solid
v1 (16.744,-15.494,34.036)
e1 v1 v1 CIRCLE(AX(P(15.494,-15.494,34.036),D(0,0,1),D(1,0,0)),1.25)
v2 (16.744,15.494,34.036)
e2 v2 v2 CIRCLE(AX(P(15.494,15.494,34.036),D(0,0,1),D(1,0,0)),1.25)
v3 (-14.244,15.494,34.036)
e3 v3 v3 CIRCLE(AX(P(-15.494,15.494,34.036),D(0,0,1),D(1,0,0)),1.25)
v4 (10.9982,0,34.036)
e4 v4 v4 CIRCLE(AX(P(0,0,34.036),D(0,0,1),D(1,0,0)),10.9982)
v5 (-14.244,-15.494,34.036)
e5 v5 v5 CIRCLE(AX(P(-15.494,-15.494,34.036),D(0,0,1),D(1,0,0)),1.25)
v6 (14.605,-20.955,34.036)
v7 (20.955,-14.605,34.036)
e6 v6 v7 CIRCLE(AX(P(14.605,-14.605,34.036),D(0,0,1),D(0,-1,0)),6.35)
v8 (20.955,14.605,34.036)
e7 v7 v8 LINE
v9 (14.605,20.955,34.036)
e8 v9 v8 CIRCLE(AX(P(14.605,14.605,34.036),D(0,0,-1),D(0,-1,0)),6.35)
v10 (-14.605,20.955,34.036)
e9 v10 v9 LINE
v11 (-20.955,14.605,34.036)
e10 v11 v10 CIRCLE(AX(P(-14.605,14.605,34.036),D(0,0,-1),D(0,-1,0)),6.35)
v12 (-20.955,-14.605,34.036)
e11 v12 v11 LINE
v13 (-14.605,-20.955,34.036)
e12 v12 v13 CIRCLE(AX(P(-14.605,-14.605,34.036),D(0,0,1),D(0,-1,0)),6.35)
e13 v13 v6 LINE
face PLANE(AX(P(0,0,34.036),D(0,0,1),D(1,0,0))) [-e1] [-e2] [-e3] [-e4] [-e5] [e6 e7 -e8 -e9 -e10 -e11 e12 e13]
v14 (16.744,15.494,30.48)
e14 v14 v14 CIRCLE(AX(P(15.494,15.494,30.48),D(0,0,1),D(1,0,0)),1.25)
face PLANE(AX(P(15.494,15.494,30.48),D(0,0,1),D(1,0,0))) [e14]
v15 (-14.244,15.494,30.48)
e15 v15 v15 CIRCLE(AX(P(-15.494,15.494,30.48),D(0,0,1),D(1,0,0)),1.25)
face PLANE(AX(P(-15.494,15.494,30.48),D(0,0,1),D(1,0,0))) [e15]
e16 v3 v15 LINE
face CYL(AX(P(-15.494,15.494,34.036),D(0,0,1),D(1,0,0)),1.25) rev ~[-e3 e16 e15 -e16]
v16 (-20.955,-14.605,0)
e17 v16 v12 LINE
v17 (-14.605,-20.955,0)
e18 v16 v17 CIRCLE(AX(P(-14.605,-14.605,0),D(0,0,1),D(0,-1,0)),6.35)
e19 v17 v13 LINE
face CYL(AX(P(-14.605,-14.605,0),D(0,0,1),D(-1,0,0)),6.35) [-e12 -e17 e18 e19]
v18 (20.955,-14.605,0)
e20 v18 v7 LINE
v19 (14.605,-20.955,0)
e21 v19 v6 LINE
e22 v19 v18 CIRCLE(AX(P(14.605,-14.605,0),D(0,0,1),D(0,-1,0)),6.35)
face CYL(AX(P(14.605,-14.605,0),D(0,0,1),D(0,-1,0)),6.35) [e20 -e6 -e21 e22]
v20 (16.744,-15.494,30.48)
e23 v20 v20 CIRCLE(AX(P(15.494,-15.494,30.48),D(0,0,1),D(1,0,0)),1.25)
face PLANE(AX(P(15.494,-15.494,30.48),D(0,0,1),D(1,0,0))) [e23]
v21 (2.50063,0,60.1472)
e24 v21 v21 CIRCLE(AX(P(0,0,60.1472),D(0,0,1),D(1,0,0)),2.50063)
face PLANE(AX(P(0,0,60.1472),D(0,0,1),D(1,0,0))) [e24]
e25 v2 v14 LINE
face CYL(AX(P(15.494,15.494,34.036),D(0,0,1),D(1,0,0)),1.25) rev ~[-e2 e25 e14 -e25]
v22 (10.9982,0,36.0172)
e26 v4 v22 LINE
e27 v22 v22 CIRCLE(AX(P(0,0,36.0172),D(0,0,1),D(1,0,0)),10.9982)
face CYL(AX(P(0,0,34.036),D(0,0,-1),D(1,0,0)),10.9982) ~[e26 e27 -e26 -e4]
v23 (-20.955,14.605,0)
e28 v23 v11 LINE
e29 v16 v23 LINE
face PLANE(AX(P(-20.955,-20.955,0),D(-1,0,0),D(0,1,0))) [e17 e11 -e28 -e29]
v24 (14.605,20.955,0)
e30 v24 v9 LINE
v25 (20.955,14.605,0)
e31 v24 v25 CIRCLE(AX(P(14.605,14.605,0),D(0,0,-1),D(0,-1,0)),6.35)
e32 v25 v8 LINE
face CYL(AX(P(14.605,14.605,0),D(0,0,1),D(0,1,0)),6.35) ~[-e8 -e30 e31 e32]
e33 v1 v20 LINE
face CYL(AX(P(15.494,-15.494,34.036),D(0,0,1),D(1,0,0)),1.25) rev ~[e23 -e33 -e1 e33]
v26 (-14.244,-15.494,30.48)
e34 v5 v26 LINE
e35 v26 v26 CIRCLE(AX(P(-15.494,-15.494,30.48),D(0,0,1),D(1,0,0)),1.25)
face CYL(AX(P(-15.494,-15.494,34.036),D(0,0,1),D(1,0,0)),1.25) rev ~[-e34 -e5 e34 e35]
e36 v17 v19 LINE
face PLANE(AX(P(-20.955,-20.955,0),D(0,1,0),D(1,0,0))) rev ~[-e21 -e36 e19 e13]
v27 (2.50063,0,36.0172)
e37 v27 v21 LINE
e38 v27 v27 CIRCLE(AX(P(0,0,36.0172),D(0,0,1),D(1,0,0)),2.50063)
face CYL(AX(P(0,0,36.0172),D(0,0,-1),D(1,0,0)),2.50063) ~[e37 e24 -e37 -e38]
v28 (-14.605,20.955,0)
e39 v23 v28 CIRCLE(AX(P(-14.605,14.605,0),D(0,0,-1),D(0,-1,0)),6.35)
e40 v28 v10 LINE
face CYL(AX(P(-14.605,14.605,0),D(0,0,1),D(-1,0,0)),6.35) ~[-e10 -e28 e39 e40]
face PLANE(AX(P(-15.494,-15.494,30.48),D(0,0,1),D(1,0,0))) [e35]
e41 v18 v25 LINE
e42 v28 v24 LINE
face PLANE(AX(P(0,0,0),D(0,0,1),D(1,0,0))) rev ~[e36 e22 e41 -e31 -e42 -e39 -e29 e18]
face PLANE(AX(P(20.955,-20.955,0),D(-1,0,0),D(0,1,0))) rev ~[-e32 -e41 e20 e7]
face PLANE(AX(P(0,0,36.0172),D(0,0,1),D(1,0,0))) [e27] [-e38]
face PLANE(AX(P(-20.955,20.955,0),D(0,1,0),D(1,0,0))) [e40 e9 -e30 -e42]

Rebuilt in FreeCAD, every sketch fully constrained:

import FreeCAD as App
import Part
import Sketcher
Q = App.Units.Quantity


def edges_at(feature, points):
    """Names of the edges that pass closest to the given points."""
    edges = feature.Shape.Edges
    near = lambda p: min(range(len(edges)), key=lambda i: edges[i].distToShape(Part.Vertex(*p))[0])
    return sorted({f"Edge{near(p) + 1}" for p in points})


def add_polygon(sketch, points):
    """Adds a closed chain of lines whose ends are joined by coincident constraints."""
    first, n = sketch.GeometryCount, len(points)
    for a, b in zip(points, points[1:] + points[:1]):
        sketch.addGeometry(Part.LineSegment(App.Vector(*a, 0), App.Vector(*b, 0)), False)
    for i in range(n):
        sketch.addConstraint(Sketcher.Constraint("Coincident", first + i, 2, first + (i + 1) % n, 1))

doc = App.newDocument("Part")
body = doc.addObject("PartDesign::Body", "Body")

# Sketch on XY plane
sketch1 = doc.addObject("Sketcher::SketchObject", "Sketch")
body.addObject(sketch1)
sketch1.AttachmentSupport = (doc.XY_Plane, [""])
sketch1.MapMode = "FlatFace"
add_polygon(sketch1, [(-21, 21), (-21, -21), (21, -21), (21, 21)])  # lines 0-3
sketch1.addConstraint([
    Sketcher.Constraint("Vertical", 0),
    Sketcher.Constraint("Horizontal", 1),
    Sketcher.Constraint("Vertical", 2),
    Sketcher.Constraint("Horizontal", 3),
    Sketcher.Constraint("Symmetric", 0, 2, 2, 2, -1, 1),
    Sketcher.Constraint("Equal", 3, 0),
    Sketcher.Constraint("DistanceX", 1, 1, 1, 2, Q("1.65 in")),
])
pad1 = doc.addObject("PartDesign::Pad", "Pad")
body.addObject(pad1)
pad1.Profile = sketch1
pad1.Length = Q("1.34 in")

# Sketch on XY plane
sketch2 = doc.addObject("Sketcher::SketchObject", "Sketch001")
body.addObject(sketch2)
sketch2.AttachmentSupport = (doc.XY_Plane, [""])
sketch2.MapMode = "FlatFace"
sketch2.AttachmentOffset = App.Placement(App.Vector(0, 0, 1.34 * 25.4), App.Rotation())
sketch2.addGeometry([
    Part.Circle(App.Vector(15.5, -15.5, 0), App.Vector(0, 0, 1), 1.2),
    Part.Circle(App.Vector(15.5, 15.5, 0), App.Vector(0, 0, 1), 1.2),
    Part.Circle(App.Vector(-15.5, 15.5, 0), App.Vector(0, 0, 1), 1.2),
    Part.Circle(App.Vector(-15.5, -15.5, 0), App.Vector(0, 0, 1), 1.2),
], False)
sketch2.addConstraint([
    Sketcher.Constraint("Equal", 0, 1),
    Sketcher.Constraint("Equal", 1, 2),
    Sketcher.Constraint("Equal", 2, 3),
    Sketcher.Constraint("Symmetric", 0, 3, 2, 3, -1, 1),
    Sketcher.Constraint("Symmetric", 1, 3, 3, 3, -1, 1),
    Sketcher.Constraint("Symmetric", 1, 3, 2, 3, -2),
    Sketcher.Constraint("Diameter", 0, 2.5),
    Sketcher.Constraint("DistanceX", -1, 1, 0, 3, Q("0.61 in")),
    Sketcher.Constraint("DistanceY", 0, 3, -1, 1, Q("0.61 in")),
])
pocket1 = doc.addObject("PartDesign::Pocket", "Pocket")
body.addObject(pocket1)
pocket1.Profile = sketch2
pocket1.Length = Q("0.14 in")
doc.recompute()

fillet = doc.addObject("PartDesign::Fillet", "Fillet")
body.addObject(fillet)
fillet.Base = (pocket1, edges_at(pocket1, [
    (-20.955, -20.955, 17.018),
    (20.955, -20.955, 17.018),
    (20.955, 20.955, 17.018),
    (-20.955, 20.955, 17.018),
]))
fillet.Radius = Q("0.25 in")

# Sketch on XY plane
sketch3 = doc.addObject("Sketcher::SketchObject", "Sketch002")
body.addObject(sketch3)
sketch3.AttachmentSupport = (doc.XY_Plane, [""])
sketch3.MapMode = "FlatFace"
sketch3.AttachmentOffset = App.Placement(App.Vector(0, 0, 1.34 * 25.4), App.Rotation())
sketch3.addGeometry(Part.Circle(App.Vector(0, 0, 0), App.Vector(0, 0, 1), 11), False)
sketch3.addConstraint([
    Sketcher.Constraint("Coincident", 0, 3, -1, 1),
    Sketcher.Constraint("Diameter", 0, Q("0.866 in")),
])
pad2 = doc.addObject("PartDesign::Pad", "Pad001")
body.addObject(pad2)
pad2.Profile = sketch3
pad2.Length = Q("0.078 in")

# Sketch on XY plane
sketch4 = doc.addObject("Sketcher::SketchObject", "Sketch003")
body.addObject(sketch4)
sketch4.AttachmentSupport = (doc.XY_Plane, [""])
sketch4.MapMode = "FlatFace"
sketch4.AttachmentOffset = App.Placement(App.Vector(0, 0, 1.418 * 25.4), App.Rotation())
sketch4.addGeometry(Part.Circle(App.Vector(0, 0, 0), App.Vector(0, 0, 1), 2.5), False)
sketch4.addConstraint([
    Sketcher.Constraint("Coincident", 0, 3, -1, 1),
    Sketcher.Constraint("Diameter", 0, Q("0.1969 in")),
])
pad3 = doc.addObject("PartDesign::Pad", "Pad002")
body.addObject(pad3)
pad3.Profile = sketch4
pad3.Length = Q("0.95 in")

doc.recompute()
